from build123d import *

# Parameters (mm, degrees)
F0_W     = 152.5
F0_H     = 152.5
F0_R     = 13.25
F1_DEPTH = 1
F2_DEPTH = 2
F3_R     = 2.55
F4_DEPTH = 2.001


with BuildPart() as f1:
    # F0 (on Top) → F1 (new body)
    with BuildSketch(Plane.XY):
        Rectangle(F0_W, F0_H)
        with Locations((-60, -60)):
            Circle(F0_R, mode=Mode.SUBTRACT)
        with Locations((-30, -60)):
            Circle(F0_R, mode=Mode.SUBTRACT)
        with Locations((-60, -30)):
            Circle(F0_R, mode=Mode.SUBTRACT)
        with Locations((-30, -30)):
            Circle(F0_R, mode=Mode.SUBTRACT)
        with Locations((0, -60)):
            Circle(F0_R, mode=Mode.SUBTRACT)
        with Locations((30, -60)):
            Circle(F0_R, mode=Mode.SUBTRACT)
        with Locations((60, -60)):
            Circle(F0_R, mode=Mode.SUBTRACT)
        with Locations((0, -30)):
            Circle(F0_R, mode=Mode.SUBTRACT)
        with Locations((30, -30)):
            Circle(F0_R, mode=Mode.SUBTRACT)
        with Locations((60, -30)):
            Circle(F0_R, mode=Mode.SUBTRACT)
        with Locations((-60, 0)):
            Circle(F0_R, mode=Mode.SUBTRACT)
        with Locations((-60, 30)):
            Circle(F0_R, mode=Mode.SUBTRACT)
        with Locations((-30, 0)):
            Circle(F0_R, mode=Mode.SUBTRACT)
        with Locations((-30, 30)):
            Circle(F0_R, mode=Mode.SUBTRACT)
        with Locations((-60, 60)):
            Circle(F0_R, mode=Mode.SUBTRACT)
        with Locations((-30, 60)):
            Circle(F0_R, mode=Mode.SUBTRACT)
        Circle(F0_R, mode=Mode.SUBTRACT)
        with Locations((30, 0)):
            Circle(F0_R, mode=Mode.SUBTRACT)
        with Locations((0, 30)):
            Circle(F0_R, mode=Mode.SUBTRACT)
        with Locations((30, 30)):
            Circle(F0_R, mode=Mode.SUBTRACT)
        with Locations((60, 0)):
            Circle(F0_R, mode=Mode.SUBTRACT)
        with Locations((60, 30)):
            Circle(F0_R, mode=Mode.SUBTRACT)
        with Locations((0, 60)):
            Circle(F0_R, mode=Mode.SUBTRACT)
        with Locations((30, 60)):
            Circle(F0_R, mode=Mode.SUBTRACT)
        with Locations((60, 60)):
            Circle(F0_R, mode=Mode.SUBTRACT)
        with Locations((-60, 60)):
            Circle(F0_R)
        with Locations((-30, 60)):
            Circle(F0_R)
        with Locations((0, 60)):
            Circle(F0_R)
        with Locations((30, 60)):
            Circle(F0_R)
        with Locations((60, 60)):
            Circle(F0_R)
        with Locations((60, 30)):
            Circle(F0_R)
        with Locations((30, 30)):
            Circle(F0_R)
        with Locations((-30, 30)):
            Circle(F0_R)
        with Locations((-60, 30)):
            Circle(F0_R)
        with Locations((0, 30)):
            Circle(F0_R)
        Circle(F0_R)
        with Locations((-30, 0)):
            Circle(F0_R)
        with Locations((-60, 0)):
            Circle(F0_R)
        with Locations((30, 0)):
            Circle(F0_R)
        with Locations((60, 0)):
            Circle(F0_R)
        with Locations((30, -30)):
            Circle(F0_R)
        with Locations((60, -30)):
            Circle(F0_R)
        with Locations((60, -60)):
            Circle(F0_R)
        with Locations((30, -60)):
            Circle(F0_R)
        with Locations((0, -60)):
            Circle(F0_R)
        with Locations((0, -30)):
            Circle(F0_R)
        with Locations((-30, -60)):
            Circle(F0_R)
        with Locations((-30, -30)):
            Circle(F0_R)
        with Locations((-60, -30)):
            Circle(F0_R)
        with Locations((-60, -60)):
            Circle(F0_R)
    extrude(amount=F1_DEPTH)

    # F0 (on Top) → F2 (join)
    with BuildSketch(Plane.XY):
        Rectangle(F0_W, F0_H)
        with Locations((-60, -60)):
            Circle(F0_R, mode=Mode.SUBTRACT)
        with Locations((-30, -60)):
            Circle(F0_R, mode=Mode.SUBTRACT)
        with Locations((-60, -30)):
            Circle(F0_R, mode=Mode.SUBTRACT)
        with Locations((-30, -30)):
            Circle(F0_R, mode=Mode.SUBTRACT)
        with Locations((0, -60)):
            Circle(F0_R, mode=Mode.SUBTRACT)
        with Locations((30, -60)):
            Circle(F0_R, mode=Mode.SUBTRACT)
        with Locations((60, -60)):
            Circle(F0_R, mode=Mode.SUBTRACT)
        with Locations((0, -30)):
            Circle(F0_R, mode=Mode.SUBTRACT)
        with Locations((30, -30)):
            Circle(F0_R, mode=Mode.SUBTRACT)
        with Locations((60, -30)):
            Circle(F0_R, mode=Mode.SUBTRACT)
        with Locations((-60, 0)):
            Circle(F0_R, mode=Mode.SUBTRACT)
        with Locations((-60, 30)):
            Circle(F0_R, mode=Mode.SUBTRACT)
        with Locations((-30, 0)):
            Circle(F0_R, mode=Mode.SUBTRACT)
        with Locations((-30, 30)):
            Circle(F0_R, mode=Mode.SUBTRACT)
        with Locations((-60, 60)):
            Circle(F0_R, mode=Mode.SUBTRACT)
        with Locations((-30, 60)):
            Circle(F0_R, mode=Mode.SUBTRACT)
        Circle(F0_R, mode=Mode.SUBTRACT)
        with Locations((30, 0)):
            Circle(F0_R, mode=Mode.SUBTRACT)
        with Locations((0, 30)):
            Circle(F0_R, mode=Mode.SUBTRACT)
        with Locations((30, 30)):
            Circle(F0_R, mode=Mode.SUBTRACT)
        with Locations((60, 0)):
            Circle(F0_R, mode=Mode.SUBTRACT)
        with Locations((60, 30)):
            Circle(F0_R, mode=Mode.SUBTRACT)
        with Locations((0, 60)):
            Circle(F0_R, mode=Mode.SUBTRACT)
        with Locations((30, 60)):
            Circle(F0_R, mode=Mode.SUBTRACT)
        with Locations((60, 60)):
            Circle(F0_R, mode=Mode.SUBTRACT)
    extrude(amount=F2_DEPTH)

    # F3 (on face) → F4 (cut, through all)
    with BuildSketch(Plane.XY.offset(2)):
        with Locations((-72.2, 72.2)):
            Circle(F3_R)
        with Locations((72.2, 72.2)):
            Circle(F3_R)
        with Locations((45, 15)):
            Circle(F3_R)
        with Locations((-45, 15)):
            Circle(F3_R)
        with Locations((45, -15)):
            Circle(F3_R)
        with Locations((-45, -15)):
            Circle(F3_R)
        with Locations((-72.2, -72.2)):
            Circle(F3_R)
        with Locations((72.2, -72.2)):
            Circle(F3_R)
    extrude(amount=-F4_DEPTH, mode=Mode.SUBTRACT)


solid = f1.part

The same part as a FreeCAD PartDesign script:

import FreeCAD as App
import Part
import Sketcher
from FreeCAD import Vector
Q = App.Units.Quantity


def add_polygon(sketch, points):
    """Adds a closed chain of lines whose ends are joined by coincident constraints."""
    first, n = sketch.GeometryCount, len(points)
    for a, b in zip(points, points[1:] + points[:1]):
        sketch.addGeometry(Part.LineSegment(App.Vector(*a, 0), App.Vector(*b, 0)), False)
    for i in range(n):
        sketch.addConstraint(Sketcher.Constraint("Coincident", first + i, 2, first + (i + 1) % n, 1))

doc = App.newDocument("Part")
params = doc.addObject("Spreadsheet::Sheet", "Params")
for row, (alias, value) in enumerate([
    ("sketch1_width", "152.5 mm"),
    ("pad1_length", "1 mm"),
    ("sketch2_diameter", "26.5 mm"),
    ("sketch2_width", "152.5 mm"),
    ("pad2_length", "2 mm"),
    ("sketch3_diameter", "5.1 mm"),
], start=1):
    params.set(f"A{row}", alias)
    params.set(f"B{row}", "=" + value)
    params.setAlias(f"B{row}", alias)

body = doc.addObject("PartDesign::Body", "Body")

sketch1 = body.newObject("Sketcher::SketchObject", "Sketch")
sketch1.AttachmentSupport = (doc.getObject("XY_Plane"), [""])
sketch1.MapMode = "FlatFace"
add_polygon(sketch1, [(-76.25, 76.25), (-76.25, -76.25), (76.25, -76.25), (76.25, 76.25)])
sketch1.addConstraint([
    Sketcher.Constraint("Vertical", 0),
    Sketcher.Constraint("Horizontal", 1),
    Sketcher.Constraint("Vertical", 2),
    Sketcher.Constraint("Horizontal", 3),
    Sketcher.Constraint("Symmetric", 0, 2, 2, 2, -1, 1),
    Sketcher.Constraint("Equal", 3, 0),
    Sketcher.Constraint("DistanceX", 1, 1, 1, 2, Q("152.5 mm")),
])
sketch1.setExpression("Constraints[10]", "Params.sketch1_width")
pad1 = body.newObject("PartDesign::Pad", "Pad")
pad1.Profile = sketch1
pad1.setExpression("Length", "Params.pad1_length")

sketch2 = body.newObject("Sketcher::SketchObject", "Sketch001")
sketch2.AttachmentSupport = (doc.getObject("XY_Plane"), [""])
sketch2.MapMode = "FlatFace"
add_polygon(sketch2, [(-76.25, 76.25), (-76.25, -76.25), (76.25, -76.25), (76.25, 76.25)])
sketch2.addGeometry(Part.Circle(Vector(-60, -60, 0), Vector(0, 0, 1), 13.25), False)
sketch2.addGeometry(Part.Circle(Vector(-30, -60, 0), Vector(0, 0, 1), 13.25), False)
sketch2.addGeometry(Part.Circle(Vector(-60, -30, 0), Vector(0, 0, 1), 13.25), False)
sketch2.addGeometry(Part.Circle(Vector(-30, -30, 0), Vector(0, 0, 1), 13.25), False)
sketch2.addGeometry(Part.Circle(Vector(0, -60, 0), Vector(0, 0, 1), 13.25), False)
sketch2.addGeometry(Part.Circle(Vector(30, -60, 0), Vector(0, 0, 1), 13.25), False)
sketch2.addGeometry(Part.Circle(Vector(60, -60, 0), Vector(0, 0, 1), 13.25), False)
sketch2.addGeometry(Part.Circle(Vector(0, -30, 0), Vector(0, 0, 1), 13.25), False)
sketch2.addGeometry(Part.Circle(Vector(30, -30, 0), Vector(0, 0, 1), 13.25), False)
sketch2.addGeometry(Part.Circle(Vector(60, -30, 0), Vector(0, 0, 1), 13.25), False)
sketch2.addGeometry(Part.Circle(Vector(-60, 0, 0), Vector(0, 0, 1), 13.25), False)
sketch2.addGeometry(Part.Circle(Vector(-60, 30, 0), Vector(0, 0, 1), 13.25), False)
sketch2.addGeometry(Part.Circle(Vector(-30, 0, 0), Vector(0, 0, 1), 13.25), False)
sketch2.addGeometry(Part.Circle(Vector(-30, 30, 0), Vector(0, 0, 1), 13.25), False)
sketch2.addGeometry(Part.Circle(Vector(-60, 60, 0), Vector(0, 0, 1), 13.25), False)
sketch2.addGeometry(Part.Circle(Vector(-30, 60, 0), Vector(0, 0, 1), 13.25), False)
sketch2.addGeometry(Part.Circle(Vector(0, 0, 0), Vector(0, 0, 1), 13.25), False)
sketch2.addGeometry(Part.Circle(Vector(30, 0, 0), Vector(0, 0, 1), 13.25), False)
sketch2.addGeometry(Part.Circle(Vector(0, 30, 0), Vector(0, 0, 1), 13.25), False)
sketch2.addGeometry(Part.Circle(Vector(30, 30, 0), Vector(0, 0, 1), 13.25), False)
sketch2.addGeometry(Part.Circle(Vector(60, 0, 0), Vector(0, 0, 1), 13.25), False)
sketch2.addGeometry(Part.Circle(Vector(60, 30, 0), Vector(0, 0, 1), 13.25), False)
sketch2.addGeometry(Part.Circle(Vector(0, 60, 0), Vector(0, 0, 1), 13.25), False)
sketch2.addGeometry(Part.Circle(Vector(30, 60, 0), Vector(0, 0, 1), 13.25), False)
sketch2.addGeometry(Part.Circle(Vector(60, 60, 0), Vector(0, 0, 1), 13.25), False)
sketch2.addConstraint([
    Sketcher.Constraint("Vertical", 0),
    Sketcher.Constraint("Horizontal", 1),
    Sketcher.Constraint("Vertical", 2),
    Sketcher.Constraint("Horizontal", 3),
    Sketcher.Constraint("Coincident", 20, 3, -1, 1),
    Sketcher.Constraint("Equal", 4, 5),
    Sketcher.Constraint("Equal", 5, 6),
    Sketcher.Constraint("Equal", 6, 7),
    Sketcher.Constraint("Equal", 7, 8),
    Sketcher.Constraint("Equal", 8, 9),
    Sketcher.Constraint("Equal", 9, 10),
    Sketcher.Constraint("Equal", 10, 11),
    Sketcher.Constraint("Equal", 11, 12),
    Sketcher.Constraint("Equal", 12, 13),
    Sketcher.Constraint("Equal", 13, 14),
    Sketcher.Constraint("Equal", 14, 15),
    Sketcher.Constraint("Equal", 15, 16),
    Sketcher.Constraint("Equal", 16, 17),
    Sketcher.Constraint("Equal", 17, 18),
    Sketcher.Constraint("Equal", 18, 19),
    Sketcher.Constraint("Equal", 19, 20),
    Sketcher.Constraint("Equal", 20, 21),
    Sketcher.Constraint("Equal", 21, 22),
    Sketcher.Constraint("Equal", 22, 23),
    Sketcher.Constraint("Equal", 23, 24),
    Sketcher.Constraint("Equal", 24, 25),
    Sketcher.Constraint("Equal", 25, 26),
    Sketcher.Constraint("Equal", 26, 27),
    Sketcher.Constraint("Equal", 27, 28),
    Sketcher.Constraint("Symmetric", 13, 3, 15, 3, -1, 1),
    Sketcher.Constraint("Symmetric", 12, 3, 17, 3, -1, 1),
    Sketcher.Constraint("Symmetric", 10, 3, 18, 3, -1, 1),
    Sketcher.Constraint("Symmetric", 9, 3, 19, 3, -1, 1),
    Sketcher.Constraint("Symmetric", 16, 3, 21, 3, -1, 1),
    Sketcher.Constraint("Symmetric", 11, 3, 22, 3, -1, 1),
    Sketcher.Constraint("Symmetric", 7, 3, 23, 3, -1, 1),
    Sketcher.Constraint("Symmetric", 14, 3, 24, 3, -1, 1),
    Sketcher.Constraint("Symmetric", 6, 3, 25, 3, -1, 1),
    Sketcher.Constraint("Symmetric", 8, 3, 26, 3, -1, 1),
    Sketcher.Constraint("Symmetric", 5, 3, 27, 3, -1, 1),
    Sketcher.Constraint("Symmetric", 4, 3, 28, 3, -1, 1),
    Sketcher.Constraint("Symmetric", 0, 2, 2, 2, -1, 1),
    Sketcher.Constraint("Symmetric", 5, 3, 9, 3, -2),
    Sketcher.Constraint("Symmetric", 4, 3, 10, 3, -2),
    Sketcher.Constraint("Symmetric", 7, 3, 12, 3, -2),
    Sketcher.Constraint("Symmetric", 6, 3, 13, 3, -2),
    Sketcher.Constraint("PointOnObject", 8, 3, -2),
    Sketcher.Constraint("PointOnObject", 11, 3, -2),
    Sketcher.Constraint("PointOnObject", 14, 3, -1),
    Sketcher.Constraint("PointOnObject", 16, 3, -1),
    Sketcher.Constraint("Horizontal", 4, 3, 5, 3),
    Sketcher.Constraint("Horizontal", 6, 3, 7, 3),
    Sketcher.Constraint("Horizontal", 5, 3, 8, 3),
    Sketcher.Constraint("Horizontal", 7, 3, 11, 3),
    Sketcher.Constraint("Vertical", 4, 3, 6, 3),
    Sketcher.Constraint("Vertical", 5, 3, 7, 3),
    Sketcher.Constraint("Vertical", 6, 3, 14, 3),
    Sketcher.Constraint("Vertical", 7, 3, 16, 3),
    Sketcher.Constraint("Equal", 3, 0),
    Sketcher.Constraint("Diameter", 4, Q("26.5 mm")),
    Sketcher.Constraint("DistanceX", 1, 1, 1, 2, Q("152.5 mm")),
    Sketcher.Constraint("DistanceX", 4, 3, -1, 1, Q("60 mm")),
    Sketcher.Constraint("DistanceY", 4, 3, -1, 1, Q("60 mm")),
    Sketcher.Constraint("DistanceX", 5, 3, -1, 1, Q("30 mm")),
    Sketcher.Constraint("DistanceY", 6, 3, -1, 1, Q("30 mm")),
])
sketch2.setExpression("Constraints[63]", "Params.sketch2_diameter")
sketch2.setExpression("Constraints[64]", "Params.sketch2_width")
pad2 = body.newObject("PartDesign::Pad", "Pad001")
pad2.Profile = sketch2
pad2.setExpression("Length", "Params.pad2_length")

sketch3 = body.newObject("Sketcher::SketchObject", "Sketch002")
sketch3.AttachmentSupport = (doc.getObject("XY_Plane"), [""])
sketch3.MapMode = "FlatFace"
sketch3.AttachmentOffset = App.Placement(Vector(0, 0, 2), App.Rotation())
sketch3.addGeometry([
    Part.Circle(Vector(-72.2, 72.2, 0), Vector(0, 0, 1), 2.55),
    Part.Circle(Vector(72.2, 72.2, 0), Vector(0, 0, 1), 2.55),
    Part.Circle(Vector(45, 15, 0), Vector(0, 0, 1), 2.55),
    Part.Circle(Vector(-45, 15, 0), Vector(0, 0, 1), 2.55),
    Part.Circle(Vector(45, -15, 0), Vector(0, 0, 1), 2.55),
    Part.Circle(Vector(-45, -15, 0), Vector(0, 0, 1), 2.55),
    Part.Circle(Vector(-72.2, -72.2, 0), Vector(0, 0, 1), 2.55),
    Part.Circle(Vector(72.2, -72.2, 0), Vector(0, 0, 1), 2.55),
], False)
sketch3.addConstraint([
    Sketcher.Constraint("Equal", 0, 1),
    Sketcher.Constraint("Equal", 1, 2),
    Sketcher.Constraint("Equal", 2, 3),
    Sketcher.Constraint("Equal", 3, 4),
    Sketcher.Constraint("Equal", 4, 5),
    Sketcher.Constraint("Equal", 5, 6),
    Sketcher.Constraint("Equal", 6, 7),
    Sketcher.Constraint("Symmetric", 3, 3, 4, 3, -1, 1),
    Sketcher.Constraint("Symmetric", 2, 3, 5, 3, -1, 1),
    Sketcher.Constraint("Symmetric", 1, 3, 6, 3, -1, 1),
    Sketcher.Constraint("Symmetric", 0, 3, 7, 3, -1, 1),
    Sketcher.Constraint("Symmetric", 0, 3, 1, 3, -2),
    Sketcher.Constraint("Symmetric", 2, 3, 3, 3, -2),
    Sketcher.Constraint("Diameter", 0, Q("5.1 mm")),
    Sketcher.Constraint("DistanceX", -1, 1, 2, 3, Q("45 mm")),
    Sketcher.Constraint("DistanceY", -1, 1, 2, 3, Q("15 mm")),
    Sketcher.Constraint("DistanceX", 0, 3, -1, 1, Q("72.2 mm")),
    Sketcher.Constraint("DistanceY", -1, 1, 0, 3, Q("72.2 mm")),
])
sketch3.setExpression("Constraints[13]", "Params.sketch3_diameter")
pocket1 = body.newObject("PartDesign::Pocket", "Pocket")
pocket1.Profile = sketch3
pocket1.Type = "ThroughAll"

doc.recompute()
